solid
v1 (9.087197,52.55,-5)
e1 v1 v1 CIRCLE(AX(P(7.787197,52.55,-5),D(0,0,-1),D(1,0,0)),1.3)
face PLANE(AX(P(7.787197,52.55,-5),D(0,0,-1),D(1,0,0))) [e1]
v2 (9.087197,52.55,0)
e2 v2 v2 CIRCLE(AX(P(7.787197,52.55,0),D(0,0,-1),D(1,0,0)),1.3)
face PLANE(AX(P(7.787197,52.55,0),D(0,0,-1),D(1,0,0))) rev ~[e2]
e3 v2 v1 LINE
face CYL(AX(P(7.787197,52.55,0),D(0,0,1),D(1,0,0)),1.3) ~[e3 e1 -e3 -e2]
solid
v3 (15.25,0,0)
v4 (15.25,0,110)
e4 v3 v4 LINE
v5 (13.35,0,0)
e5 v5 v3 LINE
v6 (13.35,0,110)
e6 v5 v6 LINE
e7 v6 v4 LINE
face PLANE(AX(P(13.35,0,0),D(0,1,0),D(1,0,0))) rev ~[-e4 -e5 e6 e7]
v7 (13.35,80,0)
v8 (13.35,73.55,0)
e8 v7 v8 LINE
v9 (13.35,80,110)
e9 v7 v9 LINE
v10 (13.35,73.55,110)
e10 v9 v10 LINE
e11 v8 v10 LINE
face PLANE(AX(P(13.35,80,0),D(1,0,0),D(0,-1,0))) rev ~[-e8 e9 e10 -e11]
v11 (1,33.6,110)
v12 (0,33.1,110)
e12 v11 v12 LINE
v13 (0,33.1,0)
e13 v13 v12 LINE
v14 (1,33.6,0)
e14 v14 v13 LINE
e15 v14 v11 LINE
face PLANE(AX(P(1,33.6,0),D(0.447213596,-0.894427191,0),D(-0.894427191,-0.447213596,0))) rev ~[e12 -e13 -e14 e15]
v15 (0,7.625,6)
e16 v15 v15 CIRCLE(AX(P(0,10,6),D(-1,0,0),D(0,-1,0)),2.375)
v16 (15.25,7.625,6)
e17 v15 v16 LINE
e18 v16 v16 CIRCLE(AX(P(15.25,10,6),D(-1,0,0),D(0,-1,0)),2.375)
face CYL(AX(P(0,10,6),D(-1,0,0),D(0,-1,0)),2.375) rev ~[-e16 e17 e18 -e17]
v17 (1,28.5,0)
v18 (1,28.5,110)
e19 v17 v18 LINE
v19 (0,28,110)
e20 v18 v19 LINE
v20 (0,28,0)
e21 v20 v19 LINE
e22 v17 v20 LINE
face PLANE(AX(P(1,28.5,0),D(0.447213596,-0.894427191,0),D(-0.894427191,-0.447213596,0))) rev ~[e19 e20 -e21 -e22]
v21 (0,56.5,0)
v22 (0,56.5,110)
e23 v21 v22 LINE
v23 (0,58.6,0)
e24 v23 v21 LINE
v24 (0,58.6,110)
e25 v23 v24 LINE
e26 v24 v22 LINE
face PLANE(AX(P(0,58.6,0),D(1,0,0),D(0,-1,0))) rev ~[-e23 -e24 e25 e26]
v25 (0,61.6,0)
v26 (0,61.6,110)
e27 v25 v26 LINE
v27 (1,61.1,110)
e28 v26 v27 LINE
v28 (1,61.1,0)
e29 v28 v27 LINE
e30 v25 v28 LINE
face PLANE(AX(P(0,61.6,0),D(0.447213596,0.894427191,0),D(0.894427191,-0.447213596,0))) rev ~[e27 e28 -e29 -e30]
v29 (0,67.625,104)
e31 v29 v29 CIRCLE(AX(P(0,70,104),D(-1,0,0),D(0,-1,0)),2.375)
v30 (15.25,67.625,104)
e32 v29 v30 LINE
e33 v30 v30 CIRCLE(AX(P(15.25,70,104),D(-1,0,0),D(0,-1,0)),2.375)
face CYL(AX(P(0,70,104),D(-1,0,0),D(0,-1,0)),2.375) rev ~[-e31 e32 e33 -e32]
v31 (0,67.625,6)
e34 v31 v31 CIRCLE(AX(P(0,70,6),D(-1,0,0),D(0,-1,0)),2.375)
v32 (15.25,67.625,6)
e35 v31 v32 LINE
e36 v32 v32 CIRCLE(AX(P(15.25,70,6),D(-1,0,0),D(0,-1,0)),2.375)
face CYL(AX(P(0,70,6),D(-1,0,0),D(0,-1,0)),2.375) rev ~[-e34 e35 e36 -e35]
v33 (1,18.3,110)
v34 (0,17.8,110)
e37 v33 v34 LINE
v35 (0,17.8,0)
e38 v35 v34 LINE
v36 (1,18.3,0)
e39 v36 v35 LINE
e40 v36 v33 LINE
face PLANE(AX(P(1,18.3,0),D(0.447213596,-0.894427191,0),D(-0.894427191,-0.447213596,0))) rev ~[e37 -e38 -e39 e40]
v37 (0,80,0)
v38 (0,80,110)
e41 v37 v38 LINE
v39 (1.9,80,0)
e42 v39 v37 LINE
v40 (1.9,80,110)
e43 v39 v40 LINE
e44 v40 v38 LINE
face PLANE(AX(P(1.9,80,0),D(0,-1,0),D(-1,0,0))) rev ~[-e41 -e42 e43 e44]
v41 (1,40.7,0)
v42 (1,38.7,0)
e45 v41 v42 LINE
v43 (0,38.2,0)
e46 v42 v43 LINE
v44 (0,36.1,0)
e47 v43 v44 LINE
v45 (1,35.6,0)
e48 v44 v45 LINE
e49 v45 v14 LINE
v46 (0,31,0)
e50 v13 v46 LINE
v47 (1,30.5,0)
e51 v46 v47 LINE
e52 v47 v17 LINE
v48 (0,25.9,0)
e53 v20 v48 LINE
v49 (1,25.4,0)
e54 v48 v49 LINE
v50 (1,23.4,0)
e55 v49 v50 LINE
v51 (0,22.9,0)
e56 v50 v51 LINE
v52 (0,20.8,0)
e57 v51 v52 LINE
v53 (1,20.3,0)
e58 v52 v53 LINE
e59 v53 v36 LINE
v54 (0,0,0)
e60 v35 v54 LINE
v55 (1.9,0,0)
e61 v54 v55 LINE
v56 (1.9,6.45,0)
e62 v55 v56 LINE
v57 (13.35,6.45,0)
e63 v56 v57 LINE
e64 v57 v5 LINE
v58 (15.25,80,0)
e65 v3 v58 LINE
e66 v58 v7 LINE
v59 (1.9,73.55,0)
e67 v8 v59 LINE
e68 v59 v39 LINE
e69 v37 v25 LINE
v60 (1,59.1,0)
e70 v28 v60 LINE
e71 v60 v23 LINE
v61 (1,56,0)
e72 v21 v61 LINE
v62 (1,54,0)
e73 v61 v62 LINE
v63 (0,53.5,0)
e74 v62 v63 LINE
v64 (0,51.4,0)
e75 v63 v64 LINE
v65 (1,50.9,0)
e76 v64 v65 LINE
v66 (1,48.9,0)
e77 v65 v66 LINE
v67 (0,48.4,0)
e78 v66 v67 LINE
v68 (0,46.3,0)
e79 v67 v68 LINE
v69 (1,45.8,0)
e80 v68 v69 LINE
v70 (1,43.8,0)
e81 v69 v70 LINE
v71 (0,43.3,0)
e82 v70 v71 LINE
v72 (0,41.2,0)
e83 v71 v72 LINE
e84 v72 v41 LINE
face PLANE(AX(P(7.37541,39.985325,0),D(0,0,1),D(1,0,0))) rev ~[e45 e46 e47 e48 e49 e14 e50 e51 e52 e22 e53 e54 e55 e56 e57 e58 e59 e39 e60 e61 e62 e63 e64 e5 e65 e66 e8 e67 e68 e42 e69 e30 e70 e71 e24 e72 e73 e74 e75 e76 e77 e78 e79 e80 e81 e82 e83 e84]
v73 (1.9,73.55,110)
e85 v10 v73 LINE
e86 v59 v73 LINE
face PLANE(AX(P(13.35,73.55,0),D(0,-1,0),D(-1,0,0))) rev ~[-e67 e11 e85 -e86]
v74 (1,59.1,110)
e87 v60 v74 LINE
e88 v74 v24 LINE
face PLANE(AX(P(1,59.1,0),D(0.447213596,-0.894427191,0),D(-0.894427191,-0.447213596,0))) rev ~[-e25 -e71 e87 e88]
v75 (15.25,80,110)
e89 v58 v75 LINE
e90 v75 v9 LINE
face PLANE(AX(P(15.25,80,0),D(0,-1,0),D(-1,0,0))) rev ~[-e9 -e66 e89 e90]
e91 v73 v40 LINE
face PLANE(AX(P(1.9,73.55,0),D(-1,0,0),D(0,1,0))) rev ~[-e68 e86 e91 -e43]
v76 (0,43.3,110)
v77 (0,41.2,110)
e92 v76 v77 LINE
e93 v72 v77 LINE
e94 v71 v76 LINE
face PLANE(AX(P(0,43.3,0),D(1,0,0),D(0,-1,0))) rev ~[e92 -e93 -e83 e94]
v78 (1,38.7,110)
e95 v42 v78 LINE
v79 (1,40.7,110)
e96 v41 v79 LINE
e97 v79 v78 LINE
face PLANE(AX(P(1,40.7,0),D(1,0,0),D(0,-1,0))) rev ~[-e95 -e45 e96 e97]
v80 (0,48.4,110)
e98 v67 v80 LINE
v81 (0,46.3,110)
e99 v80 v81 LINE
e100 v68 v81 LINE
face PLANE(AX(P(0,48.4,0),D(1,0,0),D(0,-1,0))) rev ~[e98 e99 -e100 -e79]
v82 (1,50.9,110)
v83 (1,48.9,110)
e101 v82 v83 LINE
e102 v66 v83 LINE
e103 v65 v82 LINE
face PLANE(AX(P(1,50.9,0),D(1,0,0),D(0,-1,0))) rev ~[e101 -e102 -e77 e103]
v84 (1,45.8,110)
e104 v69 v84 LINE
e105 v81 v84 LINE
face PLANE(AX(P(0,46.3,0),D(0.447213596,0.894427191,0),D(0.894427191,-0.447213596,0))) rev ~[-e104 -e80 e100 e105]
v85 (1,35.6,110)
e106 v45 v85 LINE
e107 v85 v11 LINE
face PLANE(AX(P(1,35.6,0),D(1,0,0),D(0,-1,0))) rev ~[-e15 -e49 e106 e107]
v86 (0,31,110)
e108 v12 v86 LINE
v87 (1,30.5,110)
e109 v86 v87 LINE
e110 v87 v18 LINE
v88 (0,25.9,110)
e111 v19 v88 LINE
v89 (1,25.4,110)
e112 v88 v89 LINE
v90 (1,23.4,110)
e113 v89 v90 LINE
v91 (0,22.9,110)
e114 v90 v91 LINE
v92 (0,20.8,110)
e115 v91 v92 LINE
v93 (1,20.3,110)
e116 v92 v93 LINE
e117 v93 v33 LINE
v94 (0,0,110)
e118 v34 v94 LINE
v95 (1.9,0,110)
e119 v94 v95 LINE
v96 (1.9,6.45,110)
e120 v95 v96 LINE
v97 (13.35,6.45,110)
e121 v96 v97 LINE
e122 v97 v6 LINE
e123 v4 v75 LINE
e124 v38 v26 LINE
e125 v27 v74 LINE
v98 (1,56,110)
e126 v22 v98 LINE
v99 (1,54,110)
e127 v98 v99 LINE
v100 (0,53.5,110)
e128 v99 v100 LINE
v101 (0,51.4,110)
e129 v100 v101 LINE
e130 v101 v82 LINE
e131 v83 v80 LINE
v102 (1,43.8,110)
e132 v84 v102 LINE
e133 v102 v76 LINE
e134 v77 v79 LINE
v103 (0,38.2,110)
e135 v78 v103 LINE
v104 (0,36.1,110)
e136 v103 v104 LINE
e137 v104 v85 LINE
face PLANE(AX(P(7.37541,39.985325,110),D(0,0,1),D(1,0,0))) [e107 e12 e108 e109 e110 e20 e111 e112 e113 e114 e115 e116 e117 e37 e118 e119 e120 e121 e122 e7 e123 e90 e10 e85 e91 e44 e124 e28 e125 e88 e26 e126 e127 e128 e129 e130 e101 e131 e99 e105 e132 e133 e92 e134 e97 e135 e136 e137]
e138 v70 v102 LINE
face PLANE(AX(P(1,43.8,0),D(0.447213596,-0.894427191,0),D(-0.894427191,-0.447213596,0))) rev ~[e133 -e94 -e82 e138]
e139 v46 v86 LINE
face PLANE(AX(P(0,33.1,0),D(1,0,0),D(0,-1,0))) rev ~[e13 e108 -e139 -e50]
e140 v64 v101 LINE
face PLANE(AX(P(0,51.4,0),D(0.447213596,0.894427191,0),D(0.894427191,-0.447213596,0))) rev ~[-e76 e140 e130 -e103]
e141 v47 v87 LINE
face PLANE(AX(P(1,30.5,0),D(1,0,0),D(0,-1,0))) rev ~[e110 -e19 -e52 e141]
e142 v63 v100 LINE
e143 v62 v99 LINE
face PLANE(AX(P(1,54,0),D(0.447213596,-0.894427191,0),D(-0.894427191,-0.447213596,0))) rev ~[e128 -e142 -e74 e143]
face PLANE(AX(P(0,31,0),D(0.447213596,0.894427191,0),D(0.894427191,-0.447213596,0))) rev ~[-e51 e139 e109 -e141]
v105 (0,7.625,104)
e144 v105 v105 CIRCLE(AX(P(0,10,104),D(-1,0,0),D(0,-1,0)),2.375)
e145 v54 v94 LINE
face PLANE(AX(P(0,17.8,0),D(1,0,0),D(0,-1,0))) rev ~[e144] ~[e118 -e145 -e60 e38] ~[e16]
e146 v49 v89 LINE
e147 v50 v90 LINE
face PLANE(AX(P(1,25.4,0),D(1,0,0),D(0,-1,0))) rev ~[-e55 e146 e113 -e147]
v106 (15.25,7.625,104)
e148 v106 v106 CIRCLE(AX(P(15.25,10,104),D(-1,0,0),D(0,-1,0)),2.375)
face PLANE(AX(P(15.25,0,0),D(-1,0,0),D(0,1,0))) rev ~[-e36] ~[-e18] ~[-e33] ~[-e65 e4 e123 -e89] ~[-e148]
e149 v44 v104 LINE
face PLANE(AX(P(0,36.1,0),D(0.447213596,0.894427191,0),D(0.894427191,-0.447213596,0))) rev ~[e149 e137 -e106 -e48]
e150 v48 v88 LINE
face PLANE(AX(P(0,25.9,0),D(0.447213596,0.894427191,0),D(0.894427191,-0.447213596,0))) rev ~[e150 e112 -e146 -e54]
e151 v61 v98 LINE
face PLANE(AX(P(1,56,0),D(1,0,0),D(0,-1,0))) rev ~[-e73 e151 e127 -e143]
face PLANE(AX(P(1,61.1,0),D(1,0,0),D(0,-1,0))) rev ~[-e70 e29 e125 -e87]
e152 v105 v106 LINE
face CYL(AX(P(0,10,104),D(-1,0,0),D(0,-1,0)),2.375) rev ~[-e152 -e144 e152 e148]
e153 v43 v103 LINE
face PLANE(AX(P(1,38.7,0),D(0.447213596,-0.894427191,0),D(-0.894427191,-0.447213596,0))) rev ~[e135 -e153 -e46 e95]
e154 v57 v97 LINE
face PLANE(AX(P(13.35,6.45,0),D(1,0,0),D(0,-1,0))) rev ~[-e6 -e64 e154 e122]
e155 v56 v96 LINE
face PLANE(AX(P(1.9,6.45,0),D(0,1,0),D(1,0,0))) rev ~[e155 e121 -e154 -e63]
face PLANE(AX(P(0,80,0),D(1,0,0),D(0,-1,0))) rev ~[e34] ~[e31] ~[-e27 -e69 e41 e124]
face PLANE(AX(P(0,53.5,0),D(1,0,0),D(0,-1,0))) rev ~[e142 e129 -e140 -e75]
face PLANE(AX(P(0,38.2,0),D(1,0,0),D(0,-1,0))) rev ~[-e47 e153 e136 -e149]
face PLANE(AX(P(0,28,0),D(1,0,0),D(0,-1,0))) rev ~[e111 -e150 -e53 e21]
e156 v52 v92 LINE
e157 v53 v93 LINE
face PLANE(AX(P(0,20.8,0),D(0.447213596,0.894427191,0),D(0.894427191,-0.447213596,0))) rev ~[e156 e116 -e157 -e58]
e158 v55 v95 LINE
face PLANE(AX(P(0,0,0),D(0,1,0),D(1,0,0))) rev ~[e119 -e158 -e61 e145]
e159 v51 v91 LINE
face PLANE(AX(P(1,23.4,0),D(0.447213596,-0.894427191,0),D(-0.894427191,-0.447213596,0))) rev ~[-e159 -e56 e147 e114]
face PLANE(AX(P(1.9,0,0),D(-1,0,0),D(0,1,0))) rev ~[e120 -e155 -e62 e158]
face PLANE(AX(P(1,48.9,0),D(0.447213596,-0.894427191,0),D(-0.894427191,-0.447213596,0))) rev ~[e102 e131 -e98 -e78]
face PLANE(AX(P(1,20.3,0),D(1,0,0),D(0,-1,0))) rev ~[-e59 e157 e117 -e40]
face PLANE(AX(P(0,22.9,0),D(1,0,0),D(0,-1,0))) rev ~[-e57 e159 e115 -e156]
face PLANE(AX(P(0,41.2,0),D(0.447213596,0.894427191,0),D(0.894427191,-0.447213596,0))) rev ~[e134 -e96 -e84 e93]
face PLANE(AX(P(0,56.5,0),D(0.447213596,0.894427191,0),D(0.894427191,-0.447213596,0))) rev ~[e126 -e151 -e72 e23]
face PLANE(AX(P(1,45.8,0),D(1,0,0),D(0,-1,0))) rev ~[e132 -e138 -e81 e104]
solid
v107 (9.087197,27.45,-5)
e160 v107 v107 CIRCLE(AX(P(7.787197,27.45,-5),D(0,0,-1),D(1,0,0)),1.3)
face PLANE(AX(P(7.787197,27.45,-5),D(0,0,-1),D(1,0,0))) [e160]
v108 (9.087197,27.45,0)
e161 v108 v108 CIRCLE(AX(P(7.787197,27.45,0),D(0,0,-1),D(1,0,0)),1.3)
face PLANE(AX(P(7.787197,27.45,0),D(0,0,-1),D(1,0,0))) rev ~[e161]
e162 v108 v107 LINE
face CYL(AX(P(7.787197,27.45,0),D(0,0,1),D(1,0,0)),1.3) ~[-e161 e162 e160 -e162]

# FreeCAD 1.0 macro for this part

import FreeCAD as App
import Part
import Sketcher

V = App.Vector


def add_polygon(sketch, points):
    """Adds a closed chain of lines whose ends are joined by coincident constraints."""
    first, n = sketch.GeometryCount, len(points)
    for a, b in zip(points, points[1:] + points[:1]):
        sketch.addGeometry(Part.LineSegment(App.Vector(*a, 0), App.Vector(*b, 0)), False)
    for i in range(n):
        sketch.addConstraint(Sketcher.Constraint("Coincident", first + i, 2, first + (i + 1) % n, 1))

doc = App.newDocument("Part")
body = doc.addObject("PartDesign::Body", "Body")

# Sketch on XY plane
sketch1 = body.newObject("Sketcher::SketchObject", "Sketch")
sketch1.AttachmentSupport = (doc.getObject("XY_Plane"), [""])
sketch1.MapMode = "FlatFace"
add_polygon(sketch1, [(0, 17.8), (0, 0), (1.9, 0), (1.9, 6.5), (13.3, 6.5), (13.3, 0), (15.2, 0), (15.2, 80), (13.3, 80), (13.3, 73.5), (1.9, 73.5), (1.9, 80), (0, 80), (0, 61.6), (1, 61.1), (1, 59.1), (0, 58.6), (0, 56.5), (1, 56), (1, 54), (0, 53.5), (0, 51.4), (1, 50.9), (1, 48.9), (0, 48.4), (0, 46.3), (1, 45.8), (1, 43.8), (0, 43.3), (0, 41.2), (1, 40.7), (1, 38.7), (0, 38.2), (0, 36.1), (1, 35.6), (1, 33.6), (0, 33.1), (0, 31), (1, 30.5), (1, 28.5), (0, 28), (0, 25.9), (1, 25.4), (1, 23.4), (0, 22.9), (0, 20.8), (1, 20.3), (1, 18.3)])  # lines 0-47
sketch1.addConstraint([
    Sketcher.Constraint("Vertical", 0),
    Sketcher.Constraint("Horizontal", 1),
    Sketcher.Constraint("Vertical", 2),
    Sketcher.Constraint("Horizontal", 3),
    Sketcher.Constraint("Vertical", 4),
    Sketcher.Constraint("Horizontal", 5),
    Sketcher.Constraint("Vertical", 6),
    Sketcher.Constraint("Horizontal", 7),
    Sketcher.Constraint("Vertical", 8),
    Sketcher.Constraint("Horizontal", 9),
    Sketcher.Constraint("Vertical", 10),
    Sketcher.Constraint("Horizontal", 11),
    Sketcher.Constraint("Vertical", 12),
    Sketcher.Constraint("Vertical", 14),
    Sketcher.Constraint("Vertical", 16),
    Sketcher.Constraint("Vertical", 18),
    Sketcher.Constraint("Vertical", 20),
    Sketcher.Constraint("Vertical", 22),
    Sketcher.Constraint("Vertical", 24),
    Sketcher.Constraint("Vertical", 26),
    Sketcher.Constraint("Vertical", 28),
    Sketcher.Constraint("Vertical", 30),
    Sketcher.Constraint("Vertical", 32),
    Sketcher.Constraint("Vertical", 34),
    Sketcher.Constraint("Vertical", 36),
    Sketcher.Constraint("Vertical", 38),
    Sketcher.Constraint("Vertical", 40),
    Sketcher.Constraint("Vertical", 42),
    Sketcher.Constraint("Vertical", 44),
    Sketcher.Constraint("Vertical", 46),
    Sketcher.Constraint("Coincident", 0, 2, -1, 1),
    Sketcher.Constraint("PointOnObject", 4, 2, -1),
    Sketcher.Constraint("PointOnObject", 11, 2, -2),
    Sketcher.Constraint("PointOnObject", 15, 2, -2),
    Sketcher.Constraint("PointOnObject", 19, 2, -2),
    Sketcher.Constraint("PointOnObject", 23, 2, -2),
    Sketcher.Constraint("PointOnObject", 27, 2, -2),
    Sketcher.Constraint("PointOnObject", 31, 2, -2),
    Sketcher.Constraint("PointOnObject", 35, 2, -2),
    Sketcher.Constraint("PointOnObject", 39, 2, -2),
    Sketcher.Constraint("PointOnObject", 43, 2, -2),
    Sketcher.Constraint("Parallel", 13, 17),
    Sketcher.Constraint("Parallel", 15, 19),
    Sketcher.Constraint("Parallel", 17, 21),
    Sketcher.Constraint("Parallel", 19, 23),
    Sketcher.Constraint("Parallel", 21, 25),
    Sketcher.Constraint("Parallel", 23, 27),
    Sketcher.Constraint("Parallel", 25, 29),
    Sketcher.Constraint("Parallel", 27, 31),
    Sketcher.Constraint("Parallel", 29, 33),
    Sketcher.Constraint("Parallel", 31, 35),
    Sketcher.Constraint("Parallel", 33, 37),
    Sketcher.Constraint("Parallel", 35, 39),
    Sketcher.Constraint("Parallel", 37, 41),
    Sketcher.Constraint("Parallel", 39, 43),
    Sketcher.Constraint("Parallel", 41, 45),
    Sketcher.Constraint("Parallel", 43, 47),
    Sketcher.Constraint("Horizontal", 7, 2, 10, 2),
    Sketcher.Constraint("Vertical", 4, 2, 7, 2),
    Sketcher.Constraint("Vertical", 2, 2, 9, 2),
    Sketcher.Constraint("Vertical", 14, 2, 17, 2),
    Sketcher.Constraint("Vertical", 18, 2, 21, 2),
    Sketcher.Constraint("Vertical", 22, 2, 25, 2),
    Sketcher.Constraint("Vertical", 26, 2, 29, 2),
    Sketcher.Constraint("Vertical", 30, 2, 33, 2),
    Sketcher.Constraint("Vertical", 34, 2, 37, 2),
    Sketcher.Constraint("Vertical", 38, 2, 41, 2),
    Sketcher.Constraint("Vertical", 42, 2, 45, 2),
    Sketcher.Constraint("Equal", 1, 5),
    Sketcher.Constraint("Equal", 4, 8),
    Sketcher.Constraint("Equal", 14, 18),
    Sketcher.Constraint("Equal", 16, 20),
    Sketcher.Constraint("Equal", 18, 22),
    Sketcher.Constraint("Equal", 20, 24),
    Sketcher.Constraint("Equal", 22, 26),
    Sketcher.Constraint("Equal", 24, 28),
    Sketcher.Constraint("Equal", 26, 30),
    Sketcher.Constraint("Equal", 28, 32),
    Sketcher.Constraint("Equal", 30, 34),
    Sketcher.Constraint("Equal", 32, 36),
    Sketcher.Constraint("Equal", 34, 38),
    Sketcher.Constraint("Equal", 36, 40),
    Sketcher.Constraint("Equal", 38, 42),
    Sketcher.Constraint("Equal", 40, 44),
    Sketcher.Constraint("Equal", 42, 46),
    Sketcher.Constraint("Equal", 13, 15),
    Sketcher.Constraint("DistanceY", 6, 1, 6, 2, 80.0),
    Sketcher.Constraint("DistanceY", 14, 2, 14, 1, 2.0),
    Sketcher.Constraint("DistanceX", 1, 1, 1, 2, 1.9),
    Sketcher.Constraint("DistanceY", 0, 2, 0, 1, 17.8),
    Sketcher.Constraint("DistanceY", 12, 2, 12, 1, 18.4),
    Sketcher.Constraint("DistanceY", 16, 2, 16, 1, 2.1),
    Sketcher.Constraint("DistanceX", -1, 1, 13, 2, 1.0),
    Sketcher.Constraint("DistanceX", 3, 1, 3, 2, 11.45),
    Sketcher.Constraint("DistanceY", 2, 1, 2, 2, 6.45),
])
pad1 = body.newObject("PartDesign::Pad", "Pad")
pad1.Profile = sketch1
pad1.Length = 110

# Sketch on YZ plane
sketch2 = body.newObject("Sketcher::SketchObject", "Sketch001")
sketch2.AttachmentSupport = (doc.getObject("YZ_Plane"), [""])
sketch2.MapMode = "FlatFace"
sketch2.addGeometry([
    Part.Circle(V(70, 6, 0), V(0, 0, 1), 2.4),
    Part.Circle(V(10, 6, 0), V(0, 0, 1), 2.4),
    Part.Circle(V(70, 104, 0), V(0, 0, 1), 2.4),
    Part.Circle(V(10, 104, 0), V(0, 0, 1), 2.4),
], False)
sketch2.addConstraint([
    Sketcher.Constraint("Equal", 0, 1),
    Sketcher.Constraint("Equal", 1, 2),
    Sketcher.Constraint("Equal", 2, 3),
    Sketcher.Constraint("Horizontal", 0, 3, 1, 3),
    Sketcher.Constraint("Horizontal", 2, 3, 3, 3),
    Sketcher.Constraint("Vertical", 0, 3, 2, 3),
    Sketcher.Constraint("Vertical", 1, 3, 3, 3),
    Sketcher.Constraint("Diameter", 0, 4.75),
    Sketcher.Constraint("DistanceX", -1, 1, 0, 3, 70.0),
    Sketcher.Constraint("DistanceY", -1, 1, 0, 3, 6.0),
    Sketcher.Constraint("DistanceX", -1, 1, 1, 3, 10.0),
    Sketcher.Constraint("DistanceY", -1, 1, 2, 3, 104.0),
])
pocket1 = body.newObject("PartDesign::Pocket", "Pocket")
pocket1.Profile = sketch2
pocket1.Type = "ThroughAll"
pocket1.Reversed = True
body2 = doc.addObject("PartDesign::Body", "Body001")

# Sketch on XY plane
sketch3 = body2.newObject("Sketcher::SketchObject", "Sketch002")
sketch3.AttachmentSupport = (doc.getObject("XY_Plane001"), [""])
sketch3.MapMode = "FlatFace"
sketch3.addGeometry(Part.Circle(V(7.8, 27.4, 0), V(0, 0, 1), 1.3), False)
sketch3.addConstraint([
    Sketcher.Constraint("Diameter", 0, 2.6),
    Sketcher.Constraint("DistanceY", -1, 1, 0, 3, 27.45),
    Sketcher.Constraint("DistanceX", -1, 1, 0, 3, 7.787197),
])
pad2 = body2.newObject("PartDesign::Pad", "Pad001")
pad2.Profile = sketch3
pad2.Length = 5
pad2.Reversed = True
body3 = doc.addObject("PartDesign::Body", "Body002")

# Sketch on XY plane
sketch4 = body3.newObject("Sketcher::SketchObject", "Sketch003")
sketch4.AttachmentSupport = (doc.getObject("XY_Plane002"), [""])
sketch4.MapMode = "FlatFace"
sketch4.addGeometry(Part.Circle(V(7.8, 52.5, 0), V(0, 0, 1), 1.3), False)
sketch4.addConstraint([
    Sketcher.Constraint("Diameter", 0, 2.6),
    Sketcher.Constraint("DistanceY", -1, 1, 0, 3, 52.55),
    Sketcher.Constraint("DistanceX", -1, 1, 0, 3, 7.787197),
])
pad3 = body3.newObject("PartDesign::Pad", "Pad002")
pad3.Profile = sketch4
pad3.Length = 5
pad3.Reversed = True

doc.recompute()
